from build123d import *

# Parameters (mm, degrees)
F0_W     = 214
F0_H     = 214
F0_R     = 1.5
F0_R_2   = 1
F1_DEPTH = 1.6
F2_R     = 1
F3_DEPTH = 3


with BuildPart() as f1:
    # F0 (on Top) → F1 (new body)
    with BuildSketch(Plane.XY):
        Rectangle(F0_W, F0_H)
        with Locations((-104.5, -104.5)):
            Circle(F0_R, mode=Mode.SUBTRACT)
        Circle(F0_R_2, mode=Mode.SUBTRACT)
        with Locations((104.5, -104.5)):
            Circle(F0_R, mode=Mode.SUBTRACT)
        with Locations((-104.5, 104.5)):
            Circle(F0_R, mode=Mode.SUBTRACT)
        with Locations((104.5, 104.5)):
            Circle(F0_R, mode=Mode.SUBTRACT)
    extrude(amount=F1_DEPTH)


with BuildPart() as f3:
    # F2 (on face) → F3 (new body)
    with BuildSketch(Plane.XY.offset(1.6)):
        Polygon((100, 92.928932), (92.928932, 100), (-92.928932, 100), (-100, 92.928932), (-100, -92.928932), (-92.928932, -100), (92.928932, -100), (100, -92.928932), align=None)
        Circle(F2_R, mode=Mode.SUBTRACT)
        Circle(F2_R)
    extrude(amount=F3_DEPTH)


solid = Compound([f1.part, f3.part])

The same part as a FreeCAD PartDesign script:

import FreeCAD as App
import Part
import Sketcher

V = App.Vector


def add_polygon(sketch, points):
    """Adds a closed chain of lines whose ends are joined by coincident constraints."""
    first, n = sketch.GeometryCount, len(points)
    for a, b in zip(points, points[1:] + points[:1]):
        sketch.addGeometry(Part.LineSegment(App.Vector(*a, 0), App.Vector(*b, 0)), False)
    for i in range(n):
        sketch.addConstraint(Sketcher.Constraint("Coincident", first + i, 2, first + (i + 1) % n, 1))

doc = App.newDocument("Part")
body = doc.addObject("PartDesign::Body", "Body")

sketch1 = body.newObject("Sketcher::SketchObject", "Sketch")
sketch1.AttachmentSupport = (doc.getObject("XY_Plane"), [""])
sketch1.MapMode = "FlatFace"
add_polygon(sketch1, [(-107, 107), (-107, -107), (107, -107), (107, 107)])
sketch1.addGeometry(Part.Circle(V(-104.5, -104.5, 0), V(0, 0, 1), 1.5), False)
sketch1.addGeometry(Part.Circle(V(104.5, -104.5, 0), V(0, 0, 1), 1.5), False)
sketch1.addGeometry(Part.Circle(V(-104.5, 104.5, 0), V(0, 0, 1), 1.5), False)
sketch1.addGeometry(Part.Circle(V(0, 0, 0), V(0, 0, 1), 1), False)
sketch1.addGeometry(Part.Circle(V(104.5, 104.5, 0), V(0, 0, 1), 1.5), False)
sketch1.addConstraint([
    Sketcher.Constraint("Vertical", 0),
    Sketcher.Constraint("Horizontal", 1),
    Sketcher.Constraint("Vertical", 2),
    Sketcher.Constraint("Horizontal", 3),
    Sketcher.Constraint("Coincident", 7, 3, -1, 1),
    Sketcher.Constraint("Equal", 4, 5),
    Sketcher.Constraint("Equal", 5, 6),
    Sketcher.Constraint("Equal", 6, 8),
    Sketcher.Constraint("Symmetric", 5, 3, 6, 3, -1, 1),
    Sketcher.Constraint("Symmetric", 4, 3, 8, 3, -1, 1),
    Sketcher.Constraint("Symmetric", 0, 2, 2, 2, -1, 1),
    Sketcher.Constraint("Symmetric", 4, 3, 5, 3, -2),
    Sketcher.Constraint("Equal", 3, 0),
    Sketcher.Constraint("Diameter", 4, 3.0),
    Sketcher.Constraint("Diameter", 7, 2.0),
    Sketcher.Constraint("DistanceX", 1, 1, 1, 2, 214.0),
    Sketcher.Constraint("DistanceX", 4, 3, 5, 3, 209.0),
    Sketcher.Constraint("DistanceY", 4, 3, 6, 3, 209.0),
])
pad1 = body.newObject("PartDesign::Pad", "Pad")
pad1.Profile = sketch1
pad1.Length = 1.6
body2 = doc.addObject("PartDesign::Body", "Body001")

sketch2 = body2.newObject("Sketcher::SketchObject", "Sketch001")
sketch2.AttachmentSupport = (doc.getObject("XY_Plane001"), [""])
sketch2.MapMode = "FlatFace"
sketch2.AttachmentOffset = App.Placement(V(0, 0, 1.6), App.Rotation())
add_polygon(sketch2, [(100, 93), (93, 100), (-93, 100), (-100, 93), (-100, -93), (-93, -100), (93, -100), (100, -93)])
sketch2.addConstraint([
    Sketcher.Constraint("Horizontal", 1),
    Sketcher.Constraint("Vertical", 3),
    Sketcher.Constraint("Horizontal", 5),
    Sketcher.Constraint("Vertical", 7),
    Sketcher.Constraint("Symmetric", 0, 2, 4, 2, -1, 1),
    Sketcher.Constraint("Symmetric", 2, 2, 6, 2, -1, 1),
    Sketcher.Constraint("Perpendicular", 0, 2),
    Sketcher.Constraint("Perpendicular", 2, 4),
    Sketcher.Constraint("Perpendicular", 4, 6),
    Sketcher.Constraint("Horizontal", 3, 2, 6, 2),
    Sketcher.Constraint("Vertical", 1, 2, 4, 2),
    Sketcher.Constraint("Equal", 5, 3),
    Sketcher.Constraint("Distance", 0, 10.0),
    Sketcher.Constraint("DistanceY", -1, 1, 0, 2, 100.0),
])
pad2 = body2.newObject("PartDesign::Pad", "Pad001")
pad2.Profile = sketch2
pad2.Length = 3

doc.recompute()
